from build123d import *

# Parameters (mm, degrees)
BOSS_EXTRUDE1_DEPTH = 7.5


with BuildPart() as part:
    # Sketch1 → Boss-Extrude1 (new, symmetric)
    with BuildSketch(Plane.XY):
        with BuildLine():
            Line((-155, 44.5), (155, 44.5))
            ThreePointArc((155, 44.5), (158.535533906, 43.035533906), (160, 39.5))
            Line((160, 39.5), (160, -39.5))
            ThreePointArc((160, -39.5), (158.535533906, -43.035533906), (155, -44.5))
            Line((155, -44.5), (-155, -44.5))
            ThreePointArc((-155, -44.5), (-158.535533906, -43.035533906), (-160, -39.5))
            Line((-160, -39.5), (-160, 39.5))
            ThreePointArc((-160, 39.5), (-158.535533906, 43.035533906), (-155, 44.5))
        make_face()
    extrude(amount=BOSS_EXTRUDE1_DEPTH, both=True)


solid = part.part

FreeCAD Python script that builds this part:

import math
import FreeCAD as App
import Part
import Sketcher

V = App.Vector

doc = App.newDocument("Part")
body = doc.addObject("PartDesign::Body", "Body")

sketch1 = doc.addObject("Sketcher::SketchObject", "Sketch")
body.addObject(sketch1)
sketch1.AttachmentSupport = (doc.XY_Plane, [""])
sketch1.MapMode = "FlatFace"
sketch1.addGeometry([
    Part.LineSegment(V(155, 44.5, 0), V(-155, 44.5, 0)),
    Part.ArcOfCircle(Part.Circle(V(-155, 39.5, 0), V(0, 0, 1), 5), math.radians(90), math.radians(180)),
    Part.LineSegment(V(-160, 39.5, 0), V(-160, -39.5, 0)),
    Part.ArcOfCircle(Part.Circle(V(-155, -39.5, 0), V(0, 0, 1), 5), math.radians(180), math.radians(270)),
    Part.LineSegment(V(-155, -44.5, 0), V(155, -44.5, 0)),
    Part.ArcOfCircle(Part.Circle(V(155, -39.5, 0), V(0, 0, 1), 5), math.radians(-90), math.radians(0)),
    Part.LineSegment(V(160, -39.5, 0), V(160, 39.5, 0)),
    Part.ArcOfCircle(Part.Circle(V(155, 39.5, 0), V(0, 0, 1), 5), math.radians(0), math.radians(90)),
], False)
sketch1.addConstraint([
    Sketcher.Constraint("Tangent", 0, 2, 1, 1),
    Sketcher.Constraint("Tangent", 1, 2, 2, 1),
    Sketcher.Constraint("Tangent", 2, 2, 3, 1),
    Sketcher.Constraint("Tangent", 3, 2, 4, 1),
    Sketcher.Constraint("Tangent", 4, 2, 5, 1),
    Sketcher.Constraint("Tangent", 5, 2, 6, 1),
    Sketcher.Constraint("Tangent", 6, 2, 7, 1),
    Sketcher.Constraint("Tangent", 7, 2, 0, 1),
    Sketcher.Constraint("Horizontal", 0),
    Sketcher.Constraint("Vertical", 2),
    Sketcher.Constraint("Horizontal", 4),
    Sketcher.Constraint("Vertical", 6),
    Sketcher.Constraint("Equal", 1, 3),
    Sketcher.Constraint("Equal", 3, 5),
    Sketcher.Constraint("Equal", 5, 7),
    Sketcher.Constraint("Symmetric", 1, 3, 5, 3, -1, 1),
    Sketcher.Constraint("Radius", 1, 5.0),
    Sketcher.Constraint("DistanceX", 0, 2, 0, 1, 310.0),
    Sketcher.Constraint("DistanceY", 2, 2, 2, 1, 79.0),
])
pad1 = doc.addObject("PartDesign::Pad", "Pad")
body.addObject(pad1)
pad1.Profile = sketch1
pad1.Length = 15
pad1.Midplane = True

doc.recompute()
